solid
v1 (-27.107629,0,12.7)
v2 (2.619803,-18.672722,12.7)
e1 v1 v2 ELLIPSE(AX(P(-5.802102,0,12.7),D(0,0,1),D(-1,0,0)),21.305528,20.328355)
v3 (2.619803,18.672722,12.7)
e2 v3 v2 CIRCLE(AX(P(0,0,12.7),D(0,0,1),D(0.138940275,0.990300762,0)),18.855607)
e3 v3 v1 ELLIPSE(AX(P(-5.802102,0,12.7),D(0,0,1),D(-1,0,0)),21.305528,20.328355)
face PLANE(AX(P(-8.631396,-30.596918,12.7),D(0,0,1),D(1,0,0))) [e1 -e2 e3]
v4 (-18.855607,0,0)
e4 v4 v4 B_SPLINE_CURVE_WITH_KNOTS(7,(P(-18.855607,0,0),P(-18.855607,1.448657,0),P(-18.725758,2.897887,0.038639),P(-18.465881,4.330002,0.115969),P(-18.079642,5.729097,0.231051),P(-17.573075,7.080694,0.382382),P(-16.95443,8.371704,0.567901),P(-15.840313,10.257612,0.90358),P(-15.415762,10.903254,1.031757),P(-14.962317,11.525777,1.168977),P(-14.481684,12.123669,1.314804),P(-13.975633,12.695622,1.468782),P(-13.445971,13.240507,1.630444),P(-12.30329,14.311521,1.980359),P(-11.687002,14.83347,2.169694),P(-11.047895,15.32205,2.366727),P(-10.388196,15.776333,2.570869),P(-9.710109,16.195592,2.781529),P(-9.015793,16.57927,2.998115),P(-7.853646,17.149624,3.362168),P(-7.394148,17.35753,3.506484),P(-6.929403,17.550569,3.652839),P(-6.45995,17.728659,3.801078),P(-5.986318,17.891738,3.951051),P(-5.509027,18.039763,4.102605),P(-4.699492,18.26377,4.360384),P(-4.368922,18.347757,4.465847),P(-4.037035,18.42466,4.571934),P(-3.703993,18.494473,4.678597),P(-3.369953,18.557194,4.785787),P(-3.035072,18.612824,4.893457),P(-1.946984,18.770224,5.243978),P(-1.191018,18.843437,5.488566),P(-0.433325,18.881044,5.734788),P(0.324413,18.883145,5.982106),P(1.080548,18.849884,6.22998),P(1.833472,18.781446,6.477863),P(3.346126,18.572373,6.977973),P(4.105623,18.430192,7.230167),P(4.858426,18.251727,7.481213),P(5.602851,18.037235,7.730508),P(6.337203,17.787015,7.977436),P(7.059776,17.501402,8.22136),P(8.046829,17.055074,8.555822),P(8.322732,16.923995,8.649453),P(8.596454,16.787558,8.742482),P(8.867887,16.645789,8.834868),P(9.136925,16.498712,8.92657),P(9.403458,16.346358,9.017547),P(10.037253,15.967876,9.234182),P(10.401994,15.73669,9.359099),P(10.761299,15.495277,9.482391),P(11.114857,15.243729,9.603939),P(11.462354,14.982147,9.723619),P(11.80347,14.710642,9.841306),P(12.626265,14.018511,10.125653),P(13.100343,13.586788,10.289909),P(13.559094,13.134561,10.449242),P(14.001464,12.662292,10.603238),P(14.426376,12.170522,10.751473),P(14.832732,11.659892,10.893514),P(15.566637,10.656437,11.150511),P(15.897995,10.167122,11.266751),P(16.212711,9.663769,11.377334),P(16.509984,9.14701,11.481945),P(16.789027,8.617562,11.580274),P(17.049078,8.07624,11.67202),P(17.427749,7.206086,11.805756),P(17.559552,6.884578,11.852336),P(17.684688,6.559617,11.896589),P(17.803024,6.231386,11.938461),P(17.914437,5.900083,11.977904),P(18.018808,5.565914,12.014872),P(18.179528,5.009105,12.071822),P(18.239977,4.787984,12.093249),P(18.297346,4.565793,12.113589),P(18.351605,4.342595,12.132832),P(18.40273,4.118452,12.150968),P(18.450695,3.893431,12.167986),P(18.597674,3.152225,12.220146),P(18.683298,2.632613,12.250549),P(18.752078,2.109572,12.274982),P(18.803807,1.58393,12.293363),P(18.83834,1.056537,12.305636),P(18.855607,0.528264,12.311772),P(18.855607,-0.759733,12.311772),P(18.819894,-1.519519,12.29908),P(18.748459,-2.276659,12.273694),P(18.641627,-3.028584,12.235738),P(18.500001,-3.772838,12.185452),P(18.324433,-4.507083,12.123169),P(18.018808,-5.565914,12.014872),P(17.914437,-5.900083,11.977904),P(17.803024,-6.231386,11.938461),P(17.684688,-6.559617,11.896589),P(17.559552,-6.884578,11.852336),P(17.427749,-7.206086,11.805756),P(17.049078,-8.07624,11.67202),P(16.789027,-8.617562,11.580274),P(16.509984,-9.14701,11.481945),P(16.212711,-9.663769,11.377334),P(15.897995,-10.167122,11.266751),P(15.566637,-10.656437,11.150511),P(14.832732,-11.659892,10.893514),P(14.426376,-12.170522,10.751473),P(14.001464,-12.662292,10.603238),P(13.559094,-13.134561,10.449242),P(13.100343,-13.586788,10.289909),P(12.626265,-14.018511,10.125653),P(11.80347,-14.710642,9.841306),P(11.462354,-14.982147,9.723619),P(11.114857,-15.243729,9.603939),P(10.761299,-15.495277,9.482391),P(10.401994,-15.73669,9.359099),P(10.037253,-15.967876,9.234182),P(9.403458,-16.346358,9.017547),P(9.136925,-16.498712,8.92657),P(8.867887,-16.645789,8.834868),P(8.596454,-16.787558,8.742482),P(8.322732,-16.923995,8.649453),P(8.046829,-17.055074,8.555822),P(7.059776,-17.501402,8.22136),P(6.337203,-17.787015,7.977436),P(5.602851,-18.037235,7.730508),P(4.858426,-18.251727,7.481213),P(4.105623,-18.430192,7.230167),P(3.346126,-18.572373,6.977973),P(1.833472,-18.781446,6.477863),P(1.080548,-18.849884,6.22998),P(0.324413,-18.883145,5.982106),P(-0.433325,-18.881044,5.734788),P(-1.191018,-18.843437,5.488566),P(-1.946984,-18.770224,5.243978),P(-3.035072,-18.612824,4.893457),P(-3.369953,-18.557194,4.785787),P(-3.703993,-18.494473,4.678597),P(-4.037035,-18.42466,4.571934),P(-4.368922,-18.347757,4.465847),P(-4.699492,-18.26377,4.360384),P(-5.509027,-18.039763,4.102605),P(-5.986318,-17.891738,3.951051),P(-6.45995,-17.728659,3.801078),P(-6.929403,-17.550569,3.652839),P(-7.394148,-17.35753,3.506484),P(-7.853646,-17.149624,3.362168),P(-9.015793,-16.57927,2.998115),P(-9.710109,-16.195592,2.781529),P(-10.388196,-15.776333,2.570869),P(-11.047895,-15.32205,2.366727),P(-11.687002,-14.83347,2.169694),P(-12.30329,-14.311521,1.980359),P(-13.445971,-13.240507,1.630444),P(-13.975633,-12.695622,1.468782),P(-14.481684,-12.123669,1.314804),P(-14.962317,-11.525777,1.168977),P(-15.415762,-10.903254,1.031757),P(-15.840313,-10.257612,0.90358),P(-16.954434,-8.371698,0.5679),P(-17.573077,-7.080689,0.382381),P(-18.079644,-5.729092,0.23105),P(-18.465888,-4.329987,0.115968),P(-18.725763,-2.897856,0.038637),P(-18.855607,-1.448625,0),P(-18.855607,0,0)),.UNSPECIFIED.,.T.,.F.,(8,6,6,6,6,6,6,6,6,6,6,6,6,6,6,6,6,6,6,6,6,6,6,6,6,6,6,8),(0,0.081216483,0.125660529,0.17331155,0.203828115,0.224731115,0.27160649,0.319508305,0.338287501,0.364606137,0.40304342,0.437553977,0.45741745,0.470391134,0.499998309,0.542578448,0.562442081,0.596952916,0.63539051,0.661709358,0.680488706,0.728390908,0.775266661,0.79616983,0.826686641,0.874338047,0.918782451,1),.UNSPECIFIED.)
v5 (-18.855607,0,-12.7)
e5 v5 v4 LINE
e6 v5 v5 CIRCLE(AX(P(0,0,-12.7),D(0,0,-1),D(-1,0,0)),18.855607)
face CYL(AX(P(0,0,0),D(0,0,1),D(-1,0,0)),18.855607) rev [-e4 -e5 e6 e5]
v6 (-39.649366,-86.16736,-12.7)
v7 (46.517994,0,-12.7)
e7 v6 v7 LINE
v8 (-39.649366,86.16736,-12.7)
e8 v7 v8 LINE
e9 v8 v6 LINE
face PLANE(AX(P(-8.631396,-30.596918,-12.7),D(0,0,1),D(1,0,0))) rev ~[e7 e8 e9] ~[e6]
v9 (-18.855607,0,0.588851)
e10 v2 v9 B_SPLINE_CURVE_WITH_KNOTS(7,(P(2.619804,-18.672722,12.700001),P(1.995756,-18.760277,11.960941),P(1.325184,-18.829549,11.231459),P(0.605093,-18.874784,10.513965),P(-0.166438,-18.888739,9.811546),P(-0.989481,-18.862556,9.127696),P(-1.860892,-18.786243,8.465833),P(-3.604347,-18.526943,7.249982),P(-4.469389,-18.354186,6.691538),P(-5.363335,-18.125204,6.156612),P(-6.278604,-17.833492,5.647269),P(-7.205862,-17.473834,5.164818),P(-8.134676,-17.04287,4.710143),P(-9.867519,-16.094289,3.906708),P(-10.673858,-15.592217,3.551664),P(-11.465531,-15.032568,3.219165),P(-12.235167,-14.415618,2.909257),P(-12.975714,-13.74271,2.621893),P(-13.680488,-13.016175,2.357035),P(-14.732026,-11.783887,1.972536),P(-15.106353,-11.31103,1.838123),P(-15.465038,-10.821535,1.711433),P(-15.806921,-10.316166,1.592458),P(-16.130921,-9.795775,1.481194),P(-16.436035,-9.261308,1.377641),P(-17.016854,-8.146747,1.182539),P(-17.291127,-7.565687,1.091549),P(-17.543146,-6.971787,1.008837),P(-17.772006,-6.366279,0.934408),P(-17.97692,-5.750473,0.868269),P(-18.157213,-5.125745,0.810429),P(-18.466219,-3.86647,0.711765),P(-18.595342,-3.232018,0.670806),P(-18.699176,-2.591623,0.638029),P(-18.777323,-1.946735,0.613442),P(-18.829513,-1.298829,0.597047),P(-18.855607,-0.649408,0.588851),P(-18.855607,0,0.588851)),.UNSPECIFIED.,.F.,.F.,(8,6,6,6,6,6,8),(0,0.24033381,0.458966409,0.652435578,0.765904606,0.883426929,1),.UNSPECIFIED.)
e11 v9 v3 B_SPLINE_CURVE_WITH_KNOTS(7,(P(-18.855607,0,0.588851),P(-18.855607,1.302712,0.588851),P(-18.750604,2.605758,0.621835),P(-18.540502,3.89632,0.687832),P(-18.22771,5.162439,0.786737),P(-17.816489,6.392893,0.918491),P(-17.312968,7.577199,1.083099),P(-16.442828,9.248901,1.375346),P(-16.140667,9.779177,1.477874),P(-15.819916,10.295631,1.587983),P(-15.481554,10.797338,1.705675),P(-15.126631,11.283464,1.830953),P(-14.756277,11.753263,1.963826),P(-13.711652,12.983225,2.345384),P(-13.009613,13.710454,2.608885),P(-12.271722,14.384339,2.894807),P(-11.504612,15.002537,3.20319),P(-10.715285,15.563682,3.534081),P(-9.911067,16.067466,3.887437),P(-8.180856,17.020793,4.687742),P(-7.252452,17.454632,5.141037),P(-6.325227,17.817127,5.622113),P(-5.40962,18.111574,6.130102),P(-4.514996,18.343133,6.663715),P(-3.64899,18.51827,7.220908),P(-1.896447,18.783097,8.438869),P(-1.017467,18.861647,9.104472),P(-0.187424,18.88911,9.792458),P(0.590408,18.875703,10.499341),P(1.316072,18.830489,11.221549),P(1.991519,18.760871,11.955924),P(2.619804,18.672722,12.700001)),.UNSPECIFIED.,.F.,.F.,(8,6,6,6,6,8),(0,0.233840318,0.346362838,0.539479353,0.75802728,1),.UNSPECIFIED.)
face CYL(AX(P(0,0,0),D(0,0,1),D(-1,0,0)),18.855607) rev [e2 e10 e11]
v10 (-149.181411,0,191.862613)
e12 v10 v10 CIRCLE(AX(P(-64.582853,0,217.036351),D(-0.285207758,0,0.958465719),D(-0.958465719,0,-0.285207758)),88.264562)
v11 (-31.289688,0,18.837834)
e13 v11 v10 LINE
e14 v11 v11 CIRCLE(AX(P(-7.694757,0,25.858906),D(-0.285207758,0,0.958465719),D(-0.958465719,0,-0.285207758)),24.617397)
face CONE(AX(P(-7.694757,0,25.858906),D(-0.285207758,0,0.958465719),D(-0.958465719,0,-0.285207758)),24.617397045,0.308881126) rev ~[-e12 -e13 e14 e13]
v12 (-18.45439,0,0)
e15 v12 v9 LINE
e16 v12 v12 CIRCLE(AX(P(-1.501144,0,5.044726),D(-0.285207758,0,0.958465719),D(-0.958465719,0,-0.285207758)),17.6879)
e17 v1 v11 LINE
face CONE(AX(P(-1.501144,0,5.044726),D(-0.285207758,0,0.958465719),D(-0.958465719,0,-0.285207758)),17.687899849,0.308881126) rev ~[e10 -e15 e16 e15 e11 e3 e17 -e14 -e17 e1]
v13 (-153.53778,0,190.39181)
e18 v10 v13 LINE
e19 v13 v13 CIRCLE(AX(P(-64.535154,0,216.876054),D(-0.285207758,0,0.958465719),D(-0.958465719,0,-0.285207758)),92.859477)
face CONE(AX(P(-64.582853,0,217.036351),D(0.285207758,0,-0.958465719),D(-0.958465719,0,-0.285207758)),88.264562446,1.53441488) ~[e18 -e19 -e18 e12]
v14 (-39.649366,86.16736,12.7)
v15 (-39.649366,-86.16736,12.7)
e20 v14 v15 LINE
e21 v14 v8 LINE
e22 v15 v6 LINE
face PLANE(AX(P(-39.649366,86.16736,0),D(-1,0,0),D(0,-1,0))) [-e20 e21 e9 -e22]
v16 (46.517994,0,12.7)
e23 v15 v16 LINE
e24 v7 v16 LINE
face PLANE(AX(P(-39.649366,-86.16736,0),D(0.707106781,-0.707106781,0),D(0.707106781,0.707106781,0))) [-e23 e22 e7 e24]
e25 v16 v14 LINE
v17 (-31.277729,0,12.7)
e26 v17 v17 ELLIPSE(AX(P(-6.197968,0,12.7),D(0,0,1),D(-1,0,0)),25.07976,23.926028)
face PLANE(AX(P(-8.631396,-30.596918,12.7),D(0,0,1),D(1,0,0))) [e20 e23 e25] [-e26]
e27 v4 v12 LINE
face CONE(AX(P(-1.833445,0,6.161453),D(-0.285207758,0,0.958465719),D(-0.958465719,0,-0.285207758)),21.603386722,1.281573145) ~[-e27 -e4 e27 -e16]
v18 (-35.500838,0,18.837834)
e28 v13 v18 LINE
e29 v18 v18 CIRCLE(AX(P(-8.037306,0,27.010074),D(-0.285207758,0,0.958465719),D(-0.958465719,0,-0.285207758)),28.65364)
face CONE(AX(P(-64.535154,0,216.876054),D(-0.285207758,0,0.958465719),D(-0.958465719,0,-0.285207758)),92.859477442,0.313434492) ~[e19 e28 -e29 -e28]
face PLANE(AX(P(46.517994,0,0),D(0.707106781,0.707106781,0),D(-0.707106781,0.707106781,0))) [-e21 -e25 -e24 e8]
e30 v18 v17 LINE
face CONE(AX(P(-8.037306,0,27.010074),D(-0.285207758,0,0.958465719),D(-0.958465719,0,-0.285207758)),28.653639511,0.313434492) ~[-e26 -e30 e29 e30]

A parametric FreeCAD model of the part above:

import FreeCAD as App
import Part
import Sketcher
Q = App.Units.Quantity

doc = App.newDocument("Part")
body = doc.addObject("PartDesign::Body", "Body")

# Sketch on XZ plane
sketch1 = body.newObject("Sketcher::SketchObject", "Sketch")
sketch1.AttachmentSupport = (doc.getObject("XZ_Plane"), [""])
sketch1.MapMode = "FlatFace"
sketch1.addGeometry([
    Part.LineSegment(App.Vector(-153.53778, 190.39181, 0), App.Vector(-35.500838, 18.837834, 0)),  # 0
    Part.LineSegment(App.Vector(-35.500838, 18.837834, 0), App.Vector(-22.539551, 0, 0)),  # 1
    Part.LineSegment(App.Vector(-22.539551, 0, 0), App.Vector(-18.45439, 0, 0)),  # 2
    Part.LineSegment(App.Vector(-18.45439, 0, 0), App.Vector(-31.289688, 18.837834, 0)),  # 3
    Part.LineSegment(App.Vector(-31.289688, 18.837834, 0), App.Vector(-149.181411, 191.862613, 0)),  # 4
    Part.LineSegment(App.Vector(-149.181411, 191.862613, 0), App.Vector(-153.53778, 190.39181, 0)),  # 5
], False)
sketch1.addGeometry(Part.LineSegment(App.Vector(-1.501144, 5.044726, 0), App.Vector(-64.582853, 217.036351, 0)), True)  # axis
sketch1.addConstraint([
    Sketcher.Constraint("Coincident", 0, 2, 1, 1),
    Sketcher.Constraint("Coincident", 1, 2, 2, 1),
    Sketcher.Constraint("Coincident", 2, 2, 3, 1),
    Sketcher.Constraint("Coincident", 3, 2, 4, 1),
    Sketcher.Constraint("Coincident", 4, 2, 5, 1),
    Sketcher.Constraint("Coincident", 5, 2, 0, 1),
    Sketcher.Constraint("Horizontal", 2),
    Sketcher.Constraint("PointOnObject", 1, 2, -1),
    Sketcher.Constraint("Parallel", 0, 1),
    Sketcher.Constraint("Parallel", 3, 4),
    Sketcher.Constraint("Horizontal", 0, 2, 3, 2),
    Sketcher.Constraint("DistanceX", 6, 1, -1, 1, Q("0.0591002 in")),
    Sketcher.Constraint("DistanceX", 4, 2, 1, 2, Q("4.9859 in")),
    Sketcher.Constraint("DistanceX", 2, 1, 2, 2, Q("4.085161 mm")),
    Sketcher.Constraint("DistanceX", 3, 2, 2, 2, Q("12.835298 mm")),
    Sketcher.Constraint("Distance", 1, Q("22.866109 mm")),
    Sketcher.Constraint("Distance", 3, Q("22.794931 mm")),
    Sketcher.Constraint("DistanceX", 1, 2, -1, 1, Q("22.539551 mm")),
    Sketcher.Constraint("DistanceX", 5, 2, -1, 1, Q("153.53778 mm")),
    Sketcher.Constraint("DistanceY", -1, 1, 6, 2, Q("217.036351 mm")),
    Sketcher.Constraint("Distance", 6, Q("221.178098 mm")),
    Sketcher.Constraint("DistanceY", -1, 1, 6, 1, Q("5.044726 mm")),
])
revolution = body.newObject("PartDesign::Revolution", "Revolution")
revolution.Profile = sketch1
revolution.ReferenceAxis = (sketch1, ["Axis0"])
revolution.Angle = 360

# Sketch on XY plane
sketch2 = body.newObject("Sketcher::SketchObject", "Sketch001")
sketch2.AttachmentSupport = (doc.getObject("XY_Plane"), [""])
sketch2.MapMode = "FlatFace"
sketch2.addGeometry([
    Part.LineSegment(App.Vector(-39.649366, -86.16736, 0), App.Vector(46.517994, 0, 0)),
    Part.LineSegment(App.Vector(46.517994, 0, 0), App.Vector(-39.649366, 86.16736, 0)),
    Part.LineSegment(App.Vector(-39.649366, 86.16736, 0), App.Vector(-39.649366, -86.16736, 0)),
    Part.Circle(App.Vector(0, 0, 0), App.Vector(0, 0, 1), 18.855607),
], False)
sketch2.addConstraint([
    Sketcher.Constraint("Coincident", 0, 2, 1, 1),
    Sketcher.Constraint("Coincident", 1, 2, 2, 1),
    Sketcher.Constraint("Coincident", 2, 2, 0, 1),
    Sketcher.Constraint("Vertical", 2),
    Sketcher.Constraint("Coincident", 3, 3, -1, 1),
    Sketcher.Constraint("PointOnObject", 0, 2, -1),
    Sketcher.Constraint("Perpendicular", 0, 1),
    Sketcher.Constraint("Equal", 0, 1),
    Sketcher.Constraint("Diameter", 3, Q("37.711215 mm")),
    Sketcher.Constraint("DistanceY", 2, 2, 2, 1, Q("172.334721 mm")),
    Sketcher.Constraint("DistanceX", -1, 1, 0, 2, Q("46.517994 mm")),
])
pad1 = body.newObject("PartDesign::Pad", "Pad")
pad1.Profile = sketch2
pad1.Length = Q("1 in")
pad1.Midplane = True

doc.recompute()
